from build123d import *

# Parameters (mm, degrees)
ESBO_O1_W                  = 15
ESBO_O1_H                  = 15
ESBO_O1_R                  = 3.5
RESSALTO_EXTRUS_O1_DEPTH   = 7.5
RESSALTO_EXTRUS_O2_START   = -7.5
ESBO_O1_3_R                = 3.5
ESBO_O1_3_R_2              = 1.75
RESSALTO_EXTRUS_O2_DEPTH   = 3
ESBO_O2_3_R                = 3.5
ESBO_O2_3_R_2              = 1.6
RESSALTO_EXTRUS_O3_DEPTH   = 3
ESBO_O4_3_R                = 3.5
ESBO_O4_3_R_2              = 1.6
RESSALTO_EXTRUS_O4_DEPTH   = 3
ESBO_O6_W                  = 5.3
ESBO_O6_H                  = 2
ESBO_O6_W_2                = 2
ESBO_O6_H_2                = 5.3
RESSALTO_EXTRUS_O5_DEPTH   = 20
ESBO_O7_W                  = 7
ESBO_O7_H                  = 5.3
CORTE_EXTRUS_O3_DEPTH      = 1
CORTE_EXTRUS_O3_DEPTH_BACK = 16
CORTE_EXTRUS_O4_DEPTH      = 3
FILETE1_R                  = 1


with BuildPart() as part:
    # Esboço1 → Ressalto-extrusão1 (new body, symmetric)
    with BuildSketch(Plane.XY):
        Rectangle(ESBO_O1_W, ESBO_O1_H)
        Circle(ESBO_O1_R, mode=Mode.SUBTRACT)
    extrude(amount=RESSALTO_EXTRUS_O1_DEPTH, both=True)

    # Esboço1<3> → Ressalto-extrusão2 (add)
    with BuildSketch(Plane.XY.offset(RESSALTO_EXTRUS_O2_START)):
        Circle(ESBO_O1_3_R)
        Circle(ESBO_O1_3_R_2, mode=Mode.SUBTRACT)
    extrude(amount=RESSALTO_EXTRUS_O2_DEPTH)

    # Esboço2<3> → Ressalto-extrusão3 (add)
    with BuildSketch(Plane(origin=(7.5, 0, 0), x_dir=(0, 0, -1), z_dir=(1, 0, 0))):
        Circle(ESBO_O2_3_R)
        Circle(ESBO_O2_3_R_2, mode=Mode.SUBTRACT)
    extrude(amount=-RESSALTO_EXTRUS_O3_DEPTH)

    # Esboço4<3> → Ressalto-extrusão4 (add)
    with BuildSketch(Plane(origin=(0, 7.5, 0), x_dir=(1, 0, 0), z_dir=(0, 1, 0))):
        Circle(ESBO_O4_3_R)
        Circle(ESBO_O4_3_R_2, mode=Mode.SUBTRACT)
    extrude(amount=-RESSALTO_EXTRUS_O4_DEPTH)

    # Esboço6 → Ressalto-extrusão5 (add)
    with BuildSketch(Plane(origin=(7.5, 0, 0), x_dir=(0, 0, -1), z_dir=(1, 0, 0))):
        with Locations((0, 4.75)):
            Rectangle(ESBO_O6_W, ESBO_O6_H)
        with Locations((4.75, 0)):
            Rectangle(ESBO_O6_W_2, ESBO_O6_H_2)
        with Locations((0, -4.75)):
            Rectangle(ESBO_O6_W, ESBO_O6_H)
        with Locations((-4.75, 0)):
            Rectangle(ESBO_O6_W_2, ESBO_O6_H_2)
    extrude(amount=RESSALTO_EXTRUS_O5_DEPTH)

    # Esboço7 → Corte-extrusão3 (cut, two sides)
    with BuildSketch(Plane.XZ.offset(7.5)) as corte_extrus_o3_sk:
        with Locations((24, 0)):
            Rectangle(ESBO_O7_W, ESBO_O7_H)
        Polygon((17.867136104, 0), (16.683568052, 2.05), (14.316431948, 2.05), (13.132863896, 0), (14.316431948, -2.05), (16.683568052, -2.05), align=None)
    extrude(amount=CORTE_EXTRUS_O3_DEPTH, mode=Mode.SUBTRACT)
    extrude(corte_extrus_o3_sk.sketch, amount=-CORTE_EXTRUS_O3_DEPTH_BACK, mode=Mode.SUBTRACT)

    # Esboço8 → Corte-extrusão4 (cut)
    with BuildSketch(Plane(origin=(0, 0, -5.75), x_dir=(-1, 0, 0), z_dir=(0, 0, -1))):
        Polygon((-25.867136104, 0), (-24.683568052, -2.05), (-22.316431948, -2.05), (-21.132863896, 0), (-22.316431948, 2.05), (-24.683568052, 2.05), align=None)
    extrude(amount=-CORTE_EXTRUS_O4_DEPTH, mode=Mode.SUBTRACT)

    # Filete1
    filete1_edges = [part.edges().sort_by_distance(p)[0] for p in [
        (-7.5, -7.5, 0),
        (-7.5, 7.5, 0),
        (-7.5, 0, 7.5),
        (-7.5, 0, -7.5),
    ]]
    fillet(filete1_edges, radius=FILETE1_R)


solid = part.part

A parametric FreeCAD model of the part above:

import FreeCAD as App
import Part
import Sketcher
Q = App.Units.Quantity


def edges_at(feature, points):
    """Names of the edges that pass closest to the given points."""
    edges = feature.Shape.Edges
    near = lambda p: min(range(len(edges)), key=lambda i: edges[i].distToShape(Part.Vertex(*p))[0])
    return sorted({f"Edge{near(p) + 1}" for p in points})

doc = App.newDocument("Part")
body = doc.addObject("PartDesign::Body", "Body")

# Sketch on XY plane
sketch1 = body.newObject("Sketcher::SketchObject", "Sketch")
sketch1.AttachmentSupport = (doc.getObject("XY_Plane"), [""])
sketch1.MapMode = "FlatFace"
sketch1.addGeometry(Part.LineSegment(App.Vector(-7.5, 7.5, 0), App.Vector(-7.5, -7.5, 0)), False)
sketch1.addGeometry(Part.LineSegment(App.Vector(-7.5, -7.5, 0), App.Vector(7.5, -7.5, 0)), False)
sketch1.addGeometry(Part.LineSegment(App.Vector(7.5, -7.5, 0), App.Vector(7.5, 7.5, 0)), False)
sketch1.addGeometry(Part.LineSegment(App.Vector(7.5, 7.5, 0), App.Vector(-7.5, 7.5, 0)), False)
sketch1.addGeometry(Part.Circle(App.Vector(0, 0, 0), App.Vector(0, 0, 1), 3.5), False)
sketch1.addConstraint(Sketcher.Constraint("Coincident", 0, 2, 1, 1))
sketch1.addConstraint(Sketcher.Constraint("Coincident", 1, 2, 2, 1))
sketch1.addConstraint(Sketcher.Constraint("Coincident", 2, 2, 3, 1))
sketch1.addConstraint(Sketcher.Constraint("Coincident", 3, 2, 0, 1))
sketch1.addConstraint(Sketcher.Constraint("Vertical", 0))
sketch1.addConstraint(Sketcher.Constraint("Horizontal", 1))
sketch1.addConstraint(Sketcher.Constraint("Vertical", 2))
sketch1.addConstraint(Sketcher.Constraint("Horizontal", 3))
sketch1.addConstraint(Sketcher.Constraint("Coincident", 4, 3, -1, 1))
sketch1.addConstraint(Sketcher.Constraint("Symmetric", 0, 2, 2, 2, -1, 1))
sketch1.addConstraint(Sketcher.Constraint("Equal", 3, 0))
sketch1.addConstraint(Sketcher.Constraint("Diameter", 4, Q("7 mm")))
sketch1.addConstraint(Sketcher.Constraint("DistanceX", 1, 1, 1, 2, Q("15 mm")))
pad1 = body.newObject("PartDesign::Pad", "Pad")
pad1.Profile = sketch1
pad1.Length = 15
pad1.Midplane = True

# Sketch on XY plane
sketch2 = body.newObject("Sketcher::SketchObject", "Sketch001")
sketch2.AttachmentSupport = (doc.getObject("XY_Plane"), [""])
sketch2.MapMode = "FlatFace"
sketch2.AttachmentOffset = App.Placement(App.Vector(0, 0, -7.5), App.Rotation())
sketch2.addGeometry(Part.Circle(App.Vector(0, 0, 0), App.Vector(0, 0, 1), 3.5), False)
sketch2.addGeometry(Part.Circle(App.Vector(0, 0, 0), App.Vector(0, 0, 1), 1.8), False)
sketch2.addConstraint(Sketcher.Constraint("Coincident", 0, 3, -1, 1))
sketch2.addConstraint(Sketcher.Constraint("Coincident", 1, 3, -1, 1))
sketch2.addConstraint(Sketcher.Constraint("Diameter", 0, Q("7 mm")))
sketch2.addConstraint(Sketcher.Constraint("Diameter", 1, Q("3.5 mm")))
pad2 = body.newObject("PartDesign::Pad", "Pad001")
pad2.Profile = sketch2
pad2.Length = 3

# Sketch on YZ plane
sketch3 = body.newObject("Sketcher::SketchObject", "Sketch002")
sketch3.AttachmentSupport = (doc.getObject("YZ_Plane"), [""])
sketch3.MapMode = "FlatFace"
sketch3.AttachmentOffset = App.Placement(App.Vector(0, 0, 7.5), App.Rotation())
sketch3.addGeometry(Part.Circle(App.Vector(0, 0, 0), App.Vector(0, 0, 1), 3.5), False)
sketch3.addGeometry(Part.Circle(App.Vector(0, 0, 0), App.Vector(0, 0, 1), 1.6), False)
sketch3.addConstraint(Sketcher.Constraint("Coincident", 0, 3, -1, 1))
sketch3.addConstraint(Sketcher.Constraint("Coincident", 1, 3, -1, 1))
sketch3.addConstraint(Sketcher.Constraint("Diameter", 0, Q("7 mm")))
sketch3.addConstraint(Sketcher.Constraint("Diameter", 1, Q("3.2 mm")))
pad3 = body.newObject("PartDesign::Pad", "Pad002")
pad3.Profile = sketch3
pad3.Length = 3
pad3.Reversed = True

# Sketch on XZ plane
sketch4 = body.newObject("Sketcher::SketchObject", "Sketch003")
sketch4.AttachmentSupport = (doc.getObject("XZ_Plane"), [""])
sketch4.MapMode = "FlatFace"
sketch4.AttachmentOffset = App.Placement(App.Vector(0, 0, -7.5), App.Rotation())
sketch4.addGeometry(Part.Circle(App.Vector(0, 0, 0), App.Vector(0, 0, 1), 3.5), False)
sketch4.addGeometry(Part.Circle(App.Vector(0, 0, 0), App.Vector(0, 0, 1), 1.6), False)
sketch4.addConstraint(Sketcher.Constraint("Coincident", 0, 3, -1, 1))
sketch4.addConstraint(Sketcher.Constraint("Coincident", 1, 3, -1, 1))
sketch4.addConstraint(Sketcher.Constraint("Diameter", 0, Q("7 mm")))
sketch4.addConstraint(Sketcher.Constraint("Diameter", 1, Q("3.2 mm")))
pad4 = body.newObject("PartDesign::Pad", "Pad003")
pad4.Profile = sketch4
pad4.Length = 3

# Sketch on YZ plane
sketch5 = body.newObject("Sketcher::SketchObject", "Sketch004")
sketch5.AttachmentSupport = (doc.getObject("YZ_Plane"), [""])
sketch5.MapMode = "FlatFace"
sketch5.AttachmentOffset = App.Placement(App.Vector(0, 0, 7.5), App.Rotation())
sketch5.addGeometry(Part.LineSegment(App.Vector(5.8, 2.6, 0), App.Vector(3.8, 2.6, 0)), False)
sketch5.addGeometry(Part.LineSegment(App.Vector(3.8, 2.6, 0), App.Vector(3.8, -2.6, 0)), False)
sketch5.addGeometry(Part.LineSegment(App.Vector(3.8, -2.6, 0), App.Vector(5.8, -2.6, 0)), False)
sketch5.addGeometry(Part.LineSegment(App.Vector(5.8, -2.6, 0), App.Vector(5.8, 2.6, 0)), False)
sketch5.addGeometry(Part.LineSegment(App.Vector(2.6, -3.8, 0), App.Vector(-2.6, -3.8, 0)), False)
sketch5.addGeometry(Part.LineSegment(App.Vector(-2.6, -3.8, 0), App.Vector(-2.6, -5.8, 0)), False)
sketch5.addGeometry(Part.LineSegment(App.Vector(-2.6, -5.8, 0), App.Vector(2.6, -5.8, 0)), False)
sketch5.addGeometry(Part.LineSegment(App.Vector(2.6, -5.8, 0), App.Vector(2.6, -3.8, 0)), False)
sketch5.addGeometry(Part.LineSegment(App.Vector(-3.8, 2.6, 0), App.Vector(-5.8, 2.6, 0)), False)
sketch5.addGeometry(Part.LineSegment(App.Vector(-5.8, 2.6, 0), App.Vector(-5.8, -2.6, 0)), False)
sketch5.addGeometry(Part.LineSegment(App.Vector(-5.8, -2.6, 0), App.Vector(-3.8, -2.6, 0)), False)
sketch5.addGeometry(Part.LineSegment(App.Vector(-3.8, -2.6, 0), App.Vector(-3.8, 2.6, 0)), False)
sketch5.addGeometry(Part.LineSegment(App.Vector(2.6, 5.8, 0), App.Vector(-2.6, 5.8, 0)), False)
sketch5.addGeometry(Part.LineSegment(App.Vector(-2.6, 5.8, 0), App.Vector(-2.6, 3.8, 0)), False)
sketch5.addGeometry(Part.LineSegment(App.Vector(-2.6, 3.8, 0), App.Vector(2.6, 3.8, 0)), False)
sketch5.addGeometry(Part.LineSegment(App.Vector(2.6, 3.8, 0), App.Vector(2.6, 5.8, 0)), False)
sketch5.addConstraint(Sketcher.Constraint("Coincident", 0, 2, 1, 1))
sketch5.addConstraint(Sketcher.Constraint("Coincident", 1, 2, 2, 1))
sketch5.addConstraint(Sketcher.Constraint("Coincident", 2, 2, 3, 1))
sketch5.addConstraint(Sketcher.Constraint("Coincident", 3, 2, 0, 1))
sketch5.addConstraint(Sketcher.Constraint("Coincident", 4, 2, 5, 1))
sketch5.addConstraint(Sketcher.Constraint("Coincident", 5, 2, 6, 1))
sketch5.addConstraint(Sketcher.Constraint("Coincident", 6, 2, 7, 1))
sketch5.addConstraint(Sketcher.Constraint("Coincident", 7, 2, 4, 1))
sketch5.addConstraint(Sketcher.Constraint("Coincident", 8, 2, 9, 1))
sketch5.addConstraint(Sketcher.Constraint("Coincident", 9, 2, 10, 1))
sketch5.addConstraint(Sketcher.Constraint("Coincident", 10, 2, 11, 1))
sketch5.addConstraint(Sketcher.Constraint("Coincident", 11, 2, 8, 1))
sketch5.addConstraint(Sketcher.Constraint("Coincident", 12, 2, 13, 1))
sketch5.addConstraint(Sketcher.Constraint("Coincident", 13, 2, 14, 1))
sketch5.addConstraint(Sketcher.Constraint("Coincident", 14, 2, 15, 1))
sketch5.addConstraint(Sketcher.Constraint("Coincident", 15, 2, 12, 1))
sketch5.addConstraint(Sketcher.Constraint("Horizontal", 0))
sketch5.addConstraint(Sketcher.Constraint("Vertical", 1))
sketch5.addConstraint(Sketcher.Constraint("Horizontal", 2))
sketch5.addConstraint(Sketcher.Constraint("Vertical", 3))
sketch5.addConstraint(Sketcher.Constraint("Horizontal", 4))
sketch5.addConstraint(Sketcher.Constraint("Vertical", 5))
sketch5.addConstraint(Sketcher.Constraint("Horizontal", 6))
sketch5.addConstraint(Sketcher.Constraint("Vertical", 7))
sketch5.addConstraint(Sketcher.Constraint("Horizontal", 8))
sketch5.addConstraint(Sketcher.Constraint("Vertical", 9))
sketch5.addConstraint(Sketcher.Constraint("Horizontal", 10))
sketch5.addConstraint(Sketcher.Constraint("Vertical", 11))
sketch5.addConstraint(Sketcher.Constraint("Horizontal", 12))
sketch5.addConstraint(Sketcher.Constraint("Vertical", 13))
sketch5.addConstraint(Sketcher.Constraint("Horizontal", 14))
sketch5.addConstraint(Sketcher.Constraint("Vertical", 15))
sketch5.addConstraint(Sketcher.Constraint("Symmetric", 2, 2, 8, 2, -1, 1))
sketch5.addConstraint(Sketcher.Constraint("Symmetric", 0, 2, 10, 2, -1, 1))
sketch5.addConstraint(Sketcher.Constraint("Symmetric", 6, 2, 12, 2, -1, 1))
sketch5.addConstraint(Sketcher.Constraint("Symmetric", 4, 2, 14, 2, -1, 1))
sketch5.addConstraint(Sketcher.Constraint("Horizontal", 3, 2, 8, 2))
sketch5.addConstraint(Sketcher.Constraint("Vertical", 5, 2, 12, 2))
sketch5.addConstraint(Sketcher.Constraint("Equal", 14, 1))
sketch5.addConstraint(Sketcher.Constraint("Equal", 10, 5))
sketch5.addConstraint(Sketcher.Constraint("DistanceX", 0, 2, 0, 1, Q("2 mm")))
sketch5.addConstraint(Sketcher.Constraint("DistanceX", 4, 2, 4, 1, Q("5.3 mm")))
sketch5.addConstraint(Sketcher.Constraint("DistanceX", 4, 2, 1, 2, Q("6.4 mm")))
sketch5.addConstraint(Sketcher.Constraint("DistanceY", 4, 2, 1, 2, Q("1.1 mm")))
pad5 = body.newObject("PartDesign::Pad", "Pad004")
pad5.Profile = sketch5
pad5.Length = 20

# Sketch on XZ plane
sketch6 = body.newObject("Sketcher::SketchObject", "Sketch005")
sketch6.AttachmentSupport = (doc.getObject("XZ_Plane"), [""])
sketch6.MapMode = "FlatFace"
sketch6.AttachmentOffset = App.Placement(App.Vector(0, 0, 7.5), App.Rotation())
sketch6.addGeometry(Part.LineSegment(App.Vector(20.5, 2.6, 0), App.Vector(20.5, -2.6, 0)), False)
sketch6.addGeometry(Part.LineSegment(App.Vector(20.5, -2.6, 0), App.Vector(27.5, -2.6, 0)), False)
sketch6.addGeometry(Part.LineSegment(App.Vector(27.5, -2.6, 0), App.Vector(27.5, 2.6, 0)), False)
sketch6.addGeometry(Part.LineSegment(App.Vector(27.5, 2.6, 0), App.Vector(20.5, 2.6, 0)), False)
sketch6.addGeometry(Part.LineSegment(App.Vector(17.9, 0, 0), App.Vector(16.7, 2, 0)), False)
sketch6.addGeometry(Part.LineSegment(App.Vector(16.7, 2, 0), App.Vector(14.3, 2, 0)), False)
sketch6.addGeometry(Part.LineSegment(App.Vector(14.3, 2, 0), App.Vector(13.1, 0, 0)), False)
sketch6.addGeometry(Part.LineSegment(App.Vector(13.1, 0, 0), App.Vector(14.3, -2, 0)), False)
sketch6.addGeometry(Part.LineSegment(App.Vector(14.3, -2, 0), App.Vector(16.7, -2, 0)), False)
sketch6.addGeometry(Part.LineSegment(App.Vector(16.7, -2, 0), App.Vector(17.9, 0, 0)), False)
sketch6.addConstraint(Sketcher.Constraint("Coincident", 0, 2, 1, 1))
sketch6.addConstraint(Sketcher.Constraint("Coincident", 1, 2, 2, 1))
sketch6.addConstraint(Sketcher.Constraint("Coincident", 2, 2, 3, 1))
sketch6.addConstraint(Sketcher.Constraint("Coincident", 3, 2, 0, 1))
sketch6.addConstraint(Sketcher.Constraint("Coincident", 4, 2, 5, 1))
sketch6.addConstraint(Sketcher.Constraint("Coincident", 5, 2, 6, 1))
sketch6.addConstraint(Sketcher.Constraint("Coincident", 6, 2, 7, 1))
sketch6.addConstraint(Sketcher.Constraint("Coincident", 7, 2, 8, 1))
sketch6.addConstraint(Sketcher.Constraint("Coincident", 8, 2, 9, 1))
sketch6.addConstraint(Sketcher.Constraint("Coincident", 9, 2, 4, 1))
sketch6.addConstraint(Sketcher.Constraint("Vertical", 0))
sketch6.addConstraint(Sketcher.Constraint("Horizontal", 1))
sketch6.addConstraint(Sketcher.Constraint("Vertical", 2))
sketch6.addConstraint(Sketcher.Constraint("Horizontal", 3))
sketch6.addConstraint(Sketcher.Constraint("Horizontal", 5))
sketch6.addConstraint(Sketcher.Constraint("Horizontal", 8))
sketch6.addConstraint(Sketcher.Constraint("Symmetric", 5, 2, 7, 2, -1))
sketch6.addConstraint(Sketcher.Constraint("PointOnObject", 6, 2, -1))
sketch6.addConstraint(Sketcher.Constraint("PointOnObject", 9, 2, -1))
sketch6.addConstraint(Sketcher.Constraint("Parallel", 4, 7))
sketch6.addConstraint(Sketcher.Constraint("Parallel", 6, 9))
sketch6.addConstraint(Sketcher.Constraint("DistanceX", 1, 1, 1, 2, Q("7 mm")))
sketch6.addConstraint(Sketcher.Constraint("Angle", 4, Q("120 deg")))
sketch6.addConstraint(Sketcher.Constraint("DistanceY", 0, 2, 0, 1, Q("5.3 mm")))
sketch6.addConstraint(Sketcher.Constraint("DistanceX", -1, 1, 0, 2, Q("20.5 mm")))
sketch6.addConstraint(Sketcher.Constraint("DistanceY", 4, 2, 3, 2, Q("0.6 mm")))
sketch6.addConstraint(Sketcher.Constraint("DistanceY", 7, 2, 5, 2, Q("4.1 mm")))
sketch6.addConstraint(Sketcher.Constraint("DistanceX", 5, 2, 5, 1, Q("2.367136 mm")))
sketch6.addConstraint(Sketcher.Constraint("DistanceX", -1, 1, 4, 2, Q("16.683568 mm")))
pocket1 = body.newObject("PartDesign::Pocket", "Pocket")
pocket1.Profile = sketch6
pocket1.Type = "ThroughAll"
pocket1.Midplane = True

# Sketch on XY plane
sketch7 = body.newObject("Sketcher::SketchObject", "Sketch006")
sketch7.AttachmentSupport = (doc.getObject("XY_Plane"), [""])
sketch7.MapMode = "FlatFace"
sketch7.AttachmentOffset = App.Placement(App.Vector(0, 0, -5.75), App.Rotation())
sketch7.addGeometry(Part.LineSegment(App.Vector(25.9, 0, 0), App.Vector(24.7, -2, 0)), False)
sketch7.addGeometry(Part.LineSegment(App.Vector(24.7, -2, 0), App.Vector(22.3, -2, 0)), False)
sketch7.addGeometry(Part.LineSegment(App.Vector(22.3, -2, 0), App.Vector(21.1, 0, 0)), False)
sketch7.addGeometry(Part.LineSegment(App.Vector(21.1, 0, 0), App.Vector(22.3, 2, 0)), False)
sketch7.addGeometry(Part.LineSegment(App.Vector(22.3, 2, 0), App.Vector(24.7, 2, 0)), False)
sketch7.addGeometry(Part.LineSegment(App.Vector(24.7, 2, 0), App.Vector(25.9, 0, 0)), False)
sketch7.addConstraint(Sketcher.Constraint("Coincident", 0, 2, 1, 1))
sketch7.addConstraint(Sketcher.Constraint("Coincident", 1, 2, 2, 1))
sketch7.addConstraint(Sketcher.Constraint("Coincident", 2, 2, 3, 1))
sketch7.addConstraint(Sketcher.Constraint("Coincident", 3, 2, 4, 1))
sketch7.addConstraint(Sketcher.Constraint("Coincident", 4, 2, 5, 1))
sketch7.addConstraint(Sketcher.Constraint("Coincident", 5, 2, 0, 1))
sketch7.addConstraint(Sketcher.Constraint("Horizontal", 1))
sketch7.addConstraint(Sketcher.Constraint("Horizontal", 4))
sketch7.addConstraint(Sketcher.Constraint("Symmetric", 1, 2, 3, 2, -1))
sketch7.addConstraint(Sketcher.Constraint("PointOnObject", 2, 2, -1))
sketch7.addConstraint(Sketcher.Constraint("PointOnObject", 5, 2, -1))
sketch7.addConstraint(Sketcher.Constraint("Parallel", 0, 3))
sketch7.addConstraint(Sketcher.Constraint("Parallel", 2, 5))
sketch7.addConstraint(Sketcher.Constraint("Angle", 0, Q("-120 deg")))
sketch7.addConstraint(Sketcher.Constraint("DistanceY", 1, 2, 3, 2, Q("4.1 mm")))
sketch7.addConstraint(Sketcher.Constraint("DistanceX", 1, 2, 1, 1, Q("2.367136 mm")))
sketch7.addConstraint(Sketcher.Constraint("DistanceX", -1, 1, 0, 2, Q("24.683568 mm")))
pocket2 = body.newObject("PartDesign::Pocket", "Pocket001")
pocket2.Profile = sketch7
pocket2.Length = 3
pocket2.Reversed = True
doc.recompute()

fillet = body.newObject("PartDesign::Fillet", "Fillet")
fillet.Base = (pocket2, edges_at(pocket2, [
    (-7.5, -7.5, 0),
    (-7.5, 7.5, 0),
    (-7.5, 0, 7.5),
    (-7.5, 0, -7.5),
]))
fillet.Radius = 1

doc.recompute()
